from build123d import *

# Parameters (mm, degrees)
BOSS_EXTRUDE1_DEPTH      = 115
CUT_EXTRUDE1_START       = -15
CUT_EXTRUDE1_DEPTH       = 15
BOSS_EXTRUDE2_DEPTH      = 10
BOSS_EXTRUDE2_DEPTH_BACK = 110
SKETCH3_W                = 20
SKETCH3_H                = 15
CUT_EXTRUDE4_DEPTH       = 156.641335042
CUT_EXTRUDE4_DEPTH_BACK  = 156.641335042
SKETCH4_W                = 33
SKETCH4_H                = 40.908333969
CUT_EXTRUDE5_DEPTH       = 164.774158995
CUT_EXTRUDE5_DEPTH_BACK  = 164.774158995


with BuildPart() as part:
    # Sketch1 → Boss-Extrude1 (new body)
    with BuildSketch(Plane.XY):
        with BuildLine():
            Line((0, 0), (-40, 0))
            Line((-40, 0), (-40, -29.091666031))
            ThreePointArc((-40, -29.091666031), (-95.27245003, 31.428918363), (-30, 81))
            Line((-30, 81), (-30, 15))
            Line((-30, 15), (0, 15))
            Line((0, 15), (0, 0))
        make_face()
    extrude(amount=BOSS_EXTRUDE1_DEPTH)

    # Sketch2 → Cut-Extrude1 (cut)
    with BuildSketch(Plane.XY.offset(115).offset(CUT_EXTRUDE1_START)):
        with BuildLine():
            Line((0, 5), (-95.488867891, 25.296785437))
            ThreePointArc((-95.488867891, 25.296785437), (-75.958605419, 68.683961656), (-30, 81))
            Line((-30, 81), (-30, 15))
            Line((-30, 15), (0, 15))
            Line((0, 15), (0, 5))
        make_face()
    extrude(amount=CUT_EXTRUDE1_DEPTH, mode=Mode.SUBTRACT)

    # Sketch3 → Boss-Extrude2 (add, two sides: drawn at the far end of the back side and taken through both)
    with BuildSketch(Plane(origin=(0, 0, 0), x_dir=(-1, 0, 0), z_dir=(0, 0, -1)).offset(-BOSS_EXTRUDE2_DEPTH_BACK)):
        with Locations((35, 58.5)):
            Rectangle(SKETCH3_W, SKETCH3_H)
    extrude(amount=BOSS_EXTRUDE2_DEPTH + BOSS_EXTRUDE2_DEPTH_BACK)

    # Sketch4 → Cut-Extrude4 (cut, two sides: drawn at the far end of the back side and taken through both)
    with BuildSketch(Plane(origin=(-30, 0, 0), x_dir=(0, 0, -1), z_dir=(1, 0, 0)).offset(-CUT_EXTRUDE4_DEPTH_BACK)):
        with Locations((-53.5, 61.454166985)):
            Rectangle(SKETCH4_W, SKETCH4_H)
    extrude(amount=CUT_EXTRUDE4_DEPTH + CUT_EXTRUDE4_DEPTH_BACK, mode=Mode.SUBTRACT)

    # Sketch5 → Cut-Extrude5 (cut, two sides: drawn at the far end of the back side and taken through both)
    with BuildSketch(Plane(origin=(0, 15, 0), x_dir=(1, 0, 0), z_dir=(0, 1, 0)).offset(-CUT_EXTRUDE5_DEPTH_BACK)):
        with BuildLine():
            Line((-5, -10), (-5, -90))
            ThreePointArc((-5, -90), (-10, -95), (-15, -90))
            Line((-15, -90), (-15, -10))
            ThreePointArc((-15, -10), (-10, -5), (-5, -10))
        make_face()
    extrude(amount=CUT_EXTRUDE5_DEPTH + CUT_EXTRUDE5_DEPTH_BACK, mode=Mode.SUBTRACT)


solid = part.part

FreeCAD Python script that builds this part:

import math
import FreeCAD as App
import Part
import Sketcher
Q = App.Units.Quantity

doc = App.newDocument("Part")
body = doc.addObject("PartDesign::Body", "Body")

sketch1 = body.newObject("Sketcher::SketchObject", "Sketch")
sketch1.AttachmentSupport = (doc.getObject("XY_Plane"), [""])
sketch1.MapMode = "FlatFace"
sketch1.addGeometry([
    Part.LineSegment(App.Vector(-40, 0, 0), App.Vector(0, 0, 0)),
    Part.LineSegment(App.Vector(0, 0, 0), App.Vector(0, 15, 0)),
    Part.LineSegment(App.Vector(0, 15, 0), App.Vector(-30, 15, 0)),
    Part.LineSegment(App.Vector(-30, 15, 0), App.Vector(-30, 81, 0)),
    Part.ArcOfCircle(Part.Circle(App.Vector(-40, 26.408334, 0), App.Vector(0, 0, 1), 55.5), math.radians(79.619745), math.radians(270)),
    Part.LineSegment(App.Vector(-40, -29.091666, 0), App.Vector(-40, 0, 0)),
], False)
sketch1.addConstraint([
    Sketcher.Constraint("Coincident", 0, 2, 1, 1),
    Sketcher.Constraint("Coincident", 1, 2, 2, 1),
    Sketcher.Constraint("Coincident", 2, 2, 3, 1),
    Sketcher.Constraint("Coincident", 3, 2, 4, 1),
    Sketcher.Constraint("Coincident", 4, 2, 5, 1),
    Sketcher.Constraint("Coincident", 5, 2, 0, 1),
    Sketcher.Constraint("Horizontal", 0),
    Sketcher.Constraint("Vertical", 1),
    Sketcher.Constraint("Horizontal", 2),
    Sketcher.Constraint("Vertical", 3),
    Sketcher.Constraint("Vertical", 5),
    Sketcher.Constraint("Coincident", 0, 2, -1, 1),
    Sketcher.Constraint("Radius", 4, 55.5),
    Sketcher.Constraint("DistanceX", 0, 1, 0, 2, 40.0),
    Sketcher.Constraint("DistanceX", 2, 2, 2, 1, 30.0),
    Sketcher.Constraint("DistanceY", 1, 1, 1, 2, 15.0),
    Sketcher.Constraint("DistanceY", 3, 1, 3, 2, 66.0),
    Sketcher.Constraint("DistanceX", 4, 3, -1, 1, 40.0),
])
pad1 = body.newObject("PartDesign::Pad", "Pad")
pad1.Profile = sketch1
pad1.Length = 115

sketch2 = body.newObject("Sketcher::SketchObject", "Sketch001")
sketch2.AttachmentSupport = (doc.getObject("XY_Plane"), [""])
sketch2.MapMode = "FlatFace"
sketch2.AttachmentOffset = App.Placement(App.Vector(0, 0, 100), App.Rotation())
sketch2.addGeometry([
    Part.LineSegment(App.Vector(-95.488868, 25.296785, 0), App.Vector(0, 5, 0)),
    Part.LineSegment(App.Vector(0, 5, 0), App.Vector(0, 15, 0)),
    Part.LineSegment(App.Vector(0, 15, 0), App.Vector(-30, 15, 0)),
    Part.LineSegment(App.Vector(-30, 15, 0), App.Vector(-30, 81, 0)),
    Part.ArcOfCircle(Part.Circle(App.Vector(-40, 26.408334, 0), App.Vector(0, 0, 1), 55.5), math.radians(79.619745), math.radians(181.147591)),
], False)
sketch2.addConstraint([
    Sketcher.Constraint("Coincident", 0, 2, 1, 1),
    Sketcher.Constraint("Coincident", 1, 2, 2, 1),
    Sketcher.Constraint("Coincident", 2, 2, 3, 1),
    Sketcher.Constraint("Coincident", 3, 2, 4, 1),
    Sketcher.Constraint("Coincident", 4, 2, 0, 1),
    Sketcher.Constraint("Vertical", 1),
    Sketcher.Constraint("Horizontal", 2),
    Sketcher.Constraint("Vertical", 3),
    Sketcher.Constraint("PointOnObject", 0, 2, -2),
    Sketcher.Constraint("Radius", 4, 55.5),
    Sketcher.Constraint("DistanceX", 2, 2, 2, 1, 30.0),
    Sketcher.Constraint("DistanceY", 1, 1, 1, 2, 10.0),
    Sketcher.Constraint("DistanceY", 3, 1, 3, 2, 66.0),
    Sketcher.Constraint("Angle", 0, Q("-12 deg")),
    Sketcher.Constraint("DistanceX", 4, 3, -1, 1, 40.0),
    Sketcher.Constraint("DistanceY", -1, 1, 0, 2, 5.0),
])
pocket1 = body.newObject("PartDesign::Pocket", "Pocket")
pocket1.Profile = sketch2
pocket1.Length = 15
pocket1.Reversed = True

sketch3 = body.newObject("Sketcher::SketchObject", "Sketch002")
sketch3.AttachmentSupport = (doc.getObject("XY_Plane"), [""])
sketch3.MapMode = "FlatFace"
sketch3.addGeometry([
    Part.LineSegment(App.Vector(-25, 66, 0), App.Vector(-25, 51, 0)),
    Part.LineSegment(App.Vector(-25, 51, 0), App.Vector(-45, 51, 0)),
    Part.LineSegment(App.Vector(-45, 51, 0), App.Vector(-45, 66, 0)),
    Part.LineSegment(App.Vector(-45, 66, 0), App.Vector(-25, 66, 0)),
], False)
sketch3.addConstraint([
    Sketcher.Constraint("Coincident", 0, 2, 1, 1),
    Sketcher.Constraint("Coincident", 1, 2, 2, 1),
    Sketcher.Constraint("Coincident", 2, 2, 3, 1),
    Sketcher.Constraint("Coincident", 3, 2, 0, 1),
    Sketcher.Constraint("Vertical", 0),
    Sketcher.Constraint("Horizontal", 1),
    Sketcher.Constraint("Vertical", 2),
    Sketcher.Constraint("Horizontal", 3),
    Sketcher.Constraint("DistanceX", 1, 2, 1, 1, 20.0),
    Sketcher.Constraint("DistanceY", 0, 2, 0, 1, 15.0),
    Sketcher.Constraint("DistanceX", 0, 2, -1, 1, 25.0),
    Sketcher.Constraint("DistanceY", -1, 1, 0, 2, 51.0),
])
pad2 = body.newObject("PartDesign::Pad", "Pad001")
pad2.Profile = sketch3
pad2.Type = "TwoLengths"
pad2.Length = 10
pad2.Length2 = 110
pad2.Reversed = True

sketch4 = body.newObject("Sketcher::SketchObject", "Sketch003")
sketch4.AttachmentSupport = (doc.getObject("YZ_Plane"), [""])
sketch4.MapMode = "FlatFace"
sketch4.AttachmentOffset = App.Placement(App.Vector(0, 0, -30), App.Rotation())
sketch4.addGeometry([
    Part.LineSegment(App.Vector(81.908334, 70, 0), App.Vector(41, 70, 0)),
    Part.LineSegment(App.Vector(41, 70, 0), App.Vector(41, 37, 0)),
    Part.LineSegment(App.Vector(41, 37, 0), App.Vector(81.908334, 37, 0)),
    Part.LineSegment(App.Vector(81.908334, 37, 0), App.Vector(81.908334, 70, 0)),
], False)
sketch4.addConstraint([
    Sketcher.Constraint("Coincident", 0, 2, 1, 1),
    Sketcher.Constraint("Coincident", 1, 2, 2, 1),
    Sketcher.Constraint("Coincident", 2, 2, 3, 1),
    Sketcher.Constraint("Coincident", 3, 2, 0, 1),
    Sketcher.Constraint("Horizontal", 0),
    Sketcher.Constraint("Vertical", 1),
    Sketcher.Constraint("Horizontal", 2),
    Sketcher.Constraint("Vertical", 3),
    Sketcher.Constraint("DistanceY", 1, 2, 1, 1, 33.0),
    Sketcher.Constraint("DistanceX", -1, 1, 0, 2, 41.0),
    Sketcher.Constraint("DistanceY", -1, 1, 0, 2, 70.0),
    Sketcher.Constraint("DistanceX", 0, 2, 0, 1, 40.908334),
])
pocket2 = body.newObject("PartDesign::Pocket", "Pocket001")
pocket2.Profile = sketch4
pocket2.Type = "ThroughAll"
pocket2.Midplane = True

sketch5 = body.newObject("Sketcher::SketchObject", "Sketch004")
sketch5.AttachmentSupport = (doc.getObject("XZ_Plane"), [""])
sketch5.MapMode = "FlatFace"
sketch5.AttachmentOffset = App.Placement(App.Vector(0, 0, -15), App.Rotation())
sketch5.addGeometry([
    Part.LineSegment(App.Vector(-5, 90, 0), App.Vector(-5, 10, 0)),
    Part.ArcOfCircle(Part.Circle(App.Vector(-10, 10, 0), App.Vector(0, 0, 1), 5), math.radians(180), math.radians(360)),
    Part.LineSegment(App.Vector(-15, 10, 0), App.Vector(-15, 90, 0)),
    Part.ArcOfCircle(Part.Circle(App.Vector(-10, 90, 0), App.Vector(0, 0, 1), 5), math.radians(0), math.radians(180)),
], False)
sketch5.addConstraint([
    Sketcher.Constraint("Tangent", 0, 2, 1, 2),
    Sketcher.Constraint("Tangent", 1, 1, 2, 1),
    Sketcher.Constraint("Tangent", 2, 2, 3, 2),
    Sketcher.Constraint("Tangent", 3, 1, 0, 1),
    Sketcher.Constraint("Vertical", 0),
    Sketcher.Constraint("Vertical", 2),
    Sketcher.Constraint("Radius", 1, 5.0),
    Sketcher.Constraint("DistanceY", 0, 2, 0, 1, 80.0),
    Sketcher.Constraint("DistanceX", 1, 3, -1, 1, 10.0),
    Sketcher.Constraint("DistanceY", -1, 1, 1, 3, 10.0),
])
pocket3 = body.newObject("PartDesign::Pocket", "Pocket002")
pocket3.Profile = sketch5
pocket3.Type = "ThroughAll"
pocket3.Midplane = True

doc.recompute()
